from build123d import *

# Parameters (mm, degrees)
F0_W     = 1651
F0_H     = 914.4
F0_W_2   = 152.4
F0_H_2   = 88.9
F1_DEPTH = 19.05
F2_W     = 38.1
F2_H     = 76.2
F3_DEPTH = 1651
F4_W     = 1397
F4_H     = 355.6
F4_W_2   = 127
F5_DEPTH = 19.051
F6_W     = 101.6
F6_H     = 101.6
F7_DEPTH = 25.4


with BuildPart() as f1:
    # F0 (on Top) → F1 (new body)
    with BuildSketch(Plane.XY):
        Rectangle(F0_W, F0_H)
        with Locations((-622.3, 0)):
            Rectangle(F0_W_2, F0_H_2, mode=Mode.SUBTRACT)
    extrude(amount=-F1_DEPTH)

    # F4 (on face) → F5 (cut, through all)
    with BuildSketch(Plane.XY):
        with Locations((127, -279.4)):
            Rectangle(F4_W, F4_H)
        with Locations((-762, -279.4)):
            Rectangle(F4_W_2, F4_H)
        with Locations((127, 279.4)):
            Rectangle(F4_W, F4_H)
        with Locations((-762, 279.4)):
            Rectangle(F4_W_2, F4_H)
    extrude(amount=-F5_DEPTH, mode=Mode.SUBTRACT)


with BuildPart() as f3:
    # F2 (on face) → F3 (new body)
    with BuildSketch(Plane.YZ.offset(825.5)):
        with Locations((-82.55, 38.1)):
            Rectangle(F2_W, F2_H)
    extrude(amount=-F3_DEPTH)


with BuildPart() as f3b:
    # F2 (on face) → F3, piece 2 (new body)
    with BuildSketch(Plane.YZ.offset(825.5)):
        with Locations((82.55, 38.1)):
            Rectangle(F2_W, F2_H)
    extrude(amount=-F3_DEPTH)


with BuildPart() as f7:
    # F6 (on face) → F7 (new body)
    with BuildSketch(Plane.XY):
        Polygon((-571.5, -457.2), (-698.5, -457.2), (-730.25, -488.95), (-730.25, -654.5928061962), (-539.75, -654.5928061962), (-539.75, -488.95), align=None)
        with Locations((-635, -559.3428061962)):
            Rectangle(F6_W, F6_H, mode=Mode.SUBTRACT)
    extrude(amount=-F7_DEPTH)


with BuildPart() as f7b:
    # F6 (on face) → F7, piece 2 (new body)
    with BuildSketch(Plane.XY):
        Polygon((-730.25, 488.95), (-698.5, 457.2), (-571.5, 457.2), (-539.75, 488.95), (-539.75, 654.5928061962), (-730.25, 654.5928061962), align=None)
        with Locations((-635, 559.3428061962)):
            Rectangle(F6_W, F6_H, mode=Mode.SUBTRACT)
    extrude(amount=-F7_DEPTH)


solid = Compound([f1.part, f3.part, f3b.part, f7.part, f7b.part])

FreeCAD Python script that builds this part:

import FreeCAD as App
import Part
import Sketcher
Q = App.Units.Quantity

doc = App.newDocument("Part")
body = doc.addObject("PartDesign::Body", "Body")

# Sketch on XY plane
sketch1 = body.newObject("Sketcher::SketchObject", "Sketch")
sketch1.AttachmentSupport = (doc.getObject("XY_Plane"), [""])
sketch1.MapMode = "FlatFace"
sketch1.addGeometry(Part.LineSegment(App.Vector(-826, 457, 0), App.Vector(-826, -457, 0)), False)
sketch1.addGeometry(Part.LineSegment(App.Vector(-826, -457, 0), App.Vector(826, -457, 0)), False)
sketch1.addGeometry(Part.LineSegment(App.Vector(826, -457, 0), App.Vector(826, 457, 0)), False)
sketch1.addGeometry(Part.LineSegment(App.Vector(826, 457, 0), App.Vector(-826, 457, 0)), False)
sketch1.addGeometry(Part.LineSegment(App.Vector(-546, -44, 0), App.Vector(-698, -44, 0)), False)
sketch1.addGeometry(Part.LineSegment(App.Vector(-698, -44, 0), App.Vector(-698, 44, 0)), False)
sketch1.addGeometry(Part.LineSegment(App.Vector(-698, 44, 0), App.Vector(-546, 44, 0)), False)
sketch1.addGeometry(Part.LineSegment(App.Vector(-546, 44, 0), App.Vector(-546, -44, 0)), False)
sketch1.addConstraint(Sketcher.Constraint("Coincident", 0, 2, 1, 1))
sketch1.addConstraint(Sketcher.Constraint("Coincident", 1, 2, 2, 1))
sketch1.addConstraint(Sketcher.Constraint("Coincident", 2, 2, 3, 1))
sketch1.addConstraint(Sketcher.Constraint("Coincident", 3, 2, 0, 1))
sketch1.addConstraint(Sketcher.Constraint("Coincident", 4, 2, 5, 1))
sketch1.addConstraint(Sketcher.Constraint("Coincident", 5, 2, 6, 1))
sketch1.addConstraint(Sketcher.Constraint("Coincident", 6, 2, 7, 1))
sketch1.addConstraint(Sketcher.Constraint("Coincident", 7, 2, 4, 1))
sketch1.addConstraint(Sketcher.Constraint("Vertical", 0))
sketch1.addConstraint(Sketcher.Constraint("Horizontal", 1))
sketch1.addConstraint(Sketcher.Constraint("Vertical", 2))
sketch1.addConstraint(Sketcher.Constraint("Horizontal", 3))
sketch1.addConstraint(Sketcher.Constraint("Horizontal", 4))
sketch1.addConstraint(Sketcher.Constraint("Vertical", 5))
sketch1.addConstraint(Sketcher.Constraint("Horizontal", 6))
sketch1.addConstraint(Sketcher.Constraint("Vertical", 7))
sketch1.addConstraint(Sketcher.Constraint("Symmetric", 0, 2, 2, 2, -1, 1))
sketch1.addConstraint(Sketcher.Constraint("DistanceX", 1, 1, 1, 2, Q("65 in")))
sketch1.addConstraint(Sketcher.Constraint("DistanceX", 4, 2, 4, 1, Q("6 in")))
sketch1.addConstraint(Sketcher.Constraint("DistanceY", 0, 2, 0, 1, Q("36 in")))
sketch1.addConstraint(Sketcher.Constraint("DistanceY", 5, 1, 5, 2, Q("3.5 in")))
sketch1.addConstraint(Sketcher.Constraint("DistanceX", 0, 2, 4, 2, Q("5 in")))
sketch1.addConstraint(Sketcher.Constraint("DistanceY", 4, 2, -1, 1, Q("1.75 in")))
pad1 = body.newObject("PartDesign::Pad", "Pad")
pad1.Profile = sketch1
pad1.Length = Q("0.75 in")
pad1.Reversed = True

# Sketch on XY plane
sketch2 = body.newObject("Sketcher::SketchObject", "Sketch001")
sketch2.AttachmentSupport = (doc.getObject("XY_Plane"), [""])
sketch2.MapMode = "FlatFace"
sketch2.addGeometry(Part.LineSegment(App.Vector(-572, -102, 0), App.Vector(-572, -457, 0)), False)
sketch2.addGeometry(Part.LineSegment(App.Vector(-572, -457, 0), App.Vector(826, -457, 0)), False)
sketch2.addGeometry(Part.LineSegment(App.Vector(826, -457, 0), App.Vector(826, -102, 0)), False)
sketch2.addGeometry(Part.LineSegment(App.Vector(826, -102, 0), App.Vector(-572, -102, 0)), False)
sketch2.addGeometry(Part.LineSegment(App.Vector(-826, -102, 0), App.Vector(-826, -457, 0)), False)
sketch2.addGeometry(Part.LineSegment(App.Vector(-826, -457, 0), App.Vector(-698, -457, 0)), False)
sketch2.addGeometry(Part.LineSegment(App.Vector(-698, -457, 0), App.Vector(-698, -102, 0)), False)
sketch2.addGeometry(Part.LineSegment(App.Vector(-698, -102, 0), App.Vector(-826, -102, 0)), False)
sketch2.addGeometry(Part.LineSegment(App.Vector(-572, 457, 0), App.Vector(-572, 102, 0)), False)
sketch2.addGeometry(Part.LineSegment(App.Vector(-572, 102, 0), App.Vector(826, 102, 0)), False)
sketch2.addGeometry(Part.LineSegment(App.Vector(826, 102, 0), App.Vector(826, 457, 0)), False)
sketch2.addGeometry(Part.LineSegment(App.Vector(826, 457, 0), App.Vector(-572, 457, 0)), False)
sketch2.addGeometry(Part.LineSegment(App.Vector(-826, 457, 0), App.Vector(-826, 102, 0)), False)
sketch2.addGeometry(Part.LineSegment(App.Vector(-826, 102, 0), App.Vector(-698, 102, 0)), False)
sketch2.addGeometry(Part.LineSegment(App.Vector(-698, 102, 0), App.Vector(-698, 457, 0)), False)
sketch2.addGeometry(Part.LineSegment(App.Vector(-698, 457, 0), App.Vector(-826, 457, 0)), False)
sketch2.addConstraint(Sketcher.Constraint("Coincident", 0, 2, 1, 1))
sketch2.addConstraint(Sketcher.Constraint("Coincident", 1, 2, 2, 1))
sketch2.addConstraint(Sketcher.Constraint("Coincident", 2, 2, 3, 1))
sketch2.addConstraint(Sketcher.Constraint("Coincident", 3, 2, 0, 1))
sketch2.addConstraint(Sketcher.Constraint("Coincident", 4, 2, 5, 1))
sketch2.addConstraint(Sketcher.Constraint("Coincident", 5, 2, 6, 1))
sketch2.addConstraint(Sketcher.Constraint("Coincident", 6, 2, 7, 1))
sketch2.addConstraint(Sketcher.Constraint("Coincident", 7, 2, 4, 1))
sketch2.addConstraint(Sketcher.Constraint("Coincident", 8, 2, 9, 1))
sketch2.addConstraint(Sketcher.Constraint("Coincident", 9, 2, 10, 1))
sketch2.addConstraint(Sketcher.Constraint("Coincident", 10, 2, 11, 1))
sketch2.addConstraint(Sketcher.Constraint("Coincident", 11, 2, 8, 1))
sketch2.addConstraint(Sketcher.Constraint("Coincident", 12, 2, 13, 1))
sketch2.addConstraint(Sketcher.Constraint("Coincident", 13, 2, 14, 1))
sketch2.addConstraint(Sketcher.Constraint("Coincident", 14, 2, 15, 1))
sketch2.addConstraint(Sketcher.Constraint("Coincident", 15, 2, 12, 1))
sketch2.addConstraint(Sketcher.Constraint("Vertical", 0))
sketch2.addConstraint(Sketcher.Constraint("Horizontal", 1))
sketch2.addConstraint(Sketcher.Constraint("Vertical", 2))
sketch2.addConstraint(Sketcher.Constraint("Horizontal", 3))
sketch2.addConstraint(Sketcher.Constraint("Vertical", 4))
sketch2.addConstraint(Sketcher.Constraint("Horizontal", 5))
sketch2.addConstraint(Sketcher.Constraint("Vertical", 6))
sketch2.addConstraint(Sketcher.Constraint("Horizontal", 7))
sketch2.addConstraint(Sketcher.Constraint("Vertical", 8))
sketch2.addConstraint(Sketcher.Constraint("Horizontal", 9))
sketch2.addConstraint(Sketcher.Constraint("Vertical", 10))
sketch2.addConstraint(Sketcher.Constraint("Horizontal", 11))
sketch2.addConstraint(Sketcher.Constraint("Vertical", 12))
sketch2.addConstraint(Sketcher.Constraint("Horizontal", 13))
sketch2.addConstraint(Sketcher.Constraint("Vertical", 14))
sketch2.addConstraint(Sketcher.Constraint("Horizontal", 15))
sketch2.addConstraint(Sketcher.Constraint("Symmetric", 7, 2, 9, 2, -1, 1))
sketch2.addConstraint(Sketcher.Constraint("Symmetric", 2, 2, 12, 2, -1, 1))
sketch2.addConstraint(Sketcher.Constraint("Symmetric", 1, 2, 4, 2, -2))
sketch2.addConstraint(Sketcher.Constraint("Symmetric", 3, 2, 8, 2, -1))
sketch2.addConstraint(Sketcher.Constraint("Symmetric", 5, 2, 14, 2, -1))
sketch2.addConstraint(Sketcher.Constraint("Horizontal", 11, 2, 14, 2))
sketch2.addConstraint(Sketcher.Constraint("DistanceX", 1, 1, 1, 2, Q("55 in")))
sketch2.addConstraint(Sketcher.Constraint("DistanceX", 5, 1, 5, 2, Q("5 in")))
sketch2.addConstraint(Sketcher.Constraint("DistanceY", 0, 2, 0, 1, Q("14 in")))
sketch2.addConstraint(Sketcher.Constraint("DistanceY", 0, 2, -1, 1, Q("18 in")))
sketch2.addConstraint(Sketcher.Constraint("DistanceX", 4, 2, 0, 2, Q("10 in")))
pocket1 = body.newObject("PartDesign::Pocket", "Pocket")
pocket1.Profile = sketch2
pocket1.Type = "ThroughAll"
body2 = doc.addObject("PartDesign::Body", "Body001")

# Sketch on YZ plane
sketch3 = body2.newObject("Sketcher::SketchObject", "Sketch002")
sketch3.AttachmentSupport = (doc.getObject("YZ_Plane001"), [""])
sketch3.MapMode = "FlatFace"
sketch3.AttachmentOffset = App.Placement(App.Vector(0, 0, 32.5 * 25.4), App.Rotation())
sketch3.addGeometry(Part.LineSegment(App.Vector(-102, 76, 0), App.Vector(-102, 0, 0)), False)
sketch3.addGeometry(Part.LineSegment(App.Vector(-102, 0, 0), App.Vector(-64, 0, 0)), False)
sketch3.addGeometry(Part.LineSegment(App.Vector(-64, 0, 0), App.Vector(-64, 76, 0)), False)
sketch3.addGeometry(Part.LineSegment(App.Vector(-64, 76, 0), App.Vector(-102, 76, 0)), False)
sketch3.addConstraint(Sketcher.Constraint("Coincident", 0, 2, 1, 1))
sketch3.addConstraint(Sketcher.Constraint("Coincident", 1, 2, 2, 1))
sketch3.addConstraint(Sketcher.Constraint("Coincident", 2, 2, 3, 1))
sketch3.addConstraint(Sketcher.Constraint("Coincident", 3, 2, 0, 1))
sketch3.addConstraint(Sketcher.Constraint("Vertical", 0))
sketch3.addConstraint(Sketcher.Constraint("Horizontal", 1))
sketch3.addConstraint(Sketcher.Constraint("Vertical", 2))
sketch3.addConstraint(Sketcher.Constraint("Horizontal", 3))
sketch3.addConstraint(Sketcher.Constraint("PointOnObject", 0, 2, -1))
sketch3.addConstraint(Sketcher.Constraint("DistanceY", 0, 2, 0, 1, Q("3 in")))
sketch3.addConstraint(Sketcher.Constraint("DistanceX", 1, 1, 1, 2, Q("1.5 in")))
sketch3.addConstraint(Sketcher.Constraint("DistanceX", 0, 2, -1, 1, Q("4 in")))
pad2 = body2.newObject("PartDesign::Pad", "Pad001")
pad2.Profile = sketch3
pad2.Length = Q("65 in")
pad2.Reversed = True
body3 = doc.addObject("PartDesign::Body", "Body002")

# Sketch on YZ plane
sketch4 = body3.newObject("Sketcher::SketchObject", "Sketch003")
sketch4.AttachmentSupport = (doc.getObject("YZ_Plane002"), [""])
sketch4.MapMode = "FlatFace"
sketch4.AttachmentOffset = App.Placement(App.Vector(0, 0, 32.5 * 25.4), App.Rotation())
sketch4.addGeometry(Part.LineSegment(App.Vector(64, 76, 0), App.Vector(64, 0, 0)), False)
sketch4.addGeometry(Part.LineSegment(App.Vector(64, 0, 0), App.Vector(102, 0, 0)), False)
sketch4.addGeometry(Part.LineSegment(App.Vector(102, 0, 0), App.Vector(102, 76, 0)), False)
sketch4.addGeometry(Part.LineSegment(App.Vector(102, 76, 0), App.Vector(64, 76, 0)), False)
sketch4.addConstraint(Sketcher.Constraint("Coincident", 0, 2, 1, 1))
sketch4.addConstraint(Sketcher.Constraint("Coincident", 1, 2, 2, 1))
sketch4.addConstraint(Sketcher.Constraint("Coincident", 2, 2, 3, 1))
sketch4.addConstraint(Sketcher.Constraint("Coincident", 3, 2, 0, 1))
sketch4.addConstraint(Sketcher.Constraint("Vertical", 0))
sketch4.addConstraint(Sketcher.Constraint("Horizontal", 1))
sketch4.addConstraint(Sketcher.Constraint("Vertical", 2))
sketch4.addConstraint(Sketcher.Constraint("Horizontal", 3))
sketch4.addConstraint(Sketcher.Constraint("PointOnObject", 0, 2, -1))
sketch4.addConstraint(Sketcher.Constraint("DistanceY", 0, 2, 0, 1, Q("3 in")))
sketch4.addConstraint(Sketcher.Constraint("DistanceX", 1, 1, 1, 2, Q("1.5 in")))
sketch4.addConstraint(Sketcher.Constraint("DistanceX", -1, 1, 1, 2, Q("4 in")))
pad3 = body3.newObject("PartDesign::Pad", "Pad002")
pad3.Profile = sketch4
pad3.Length = Q("65 in")
pad3.Reversed = True
body4 = doc.addObject("PartDesign::Body", "Body003")

# Sketch on XY plane
sketch5 = body4.newObject("Sketcher::SketchObject", "Sketch004")
sketch5.AttachmentSupport = (doc.getObject("XY_Plane003"), [""])
sketch5.MapMode = "FlatFace"
sketch5.addGeometry(Part.LineSegment(App.Vector(-572, -457, 0), App.Vector(-698, -457, 0)), False)
sketch5.addGeometry(Part.LineSegment(App.Vector(-698, -457, 0), App.Vector(-730, -489, 0)), False)
sketch5.addGeometry(Part.LineSegment(App.Vector(-730, -489, 0), App.Vector(-730, -655, 0)), False)
sketch5.addGeometry(Part.LineSegment(App.Vector(-730, -655, 0), App.Vector(-540, -655, 0)), False)
sketch5.addGeometry(Part.LineSegment(App.Vector(-540, -655, 0), App.Vector(-540, -489, 0)), False)
sketch5.addGeometry(Part.LineSegment(App.Vector(-540, -489, 0), App.Vector(-572, -457, 0)), False)
sketch5.addGeometry(Part.LineSegment(App.Vector(-584, -610, 0), App.Vector(-686, -610, 0)), False)
sketch5.addGeometry(Part.LineSegment(App.Vector(-686, -610, 0), App.Vector(-686, -509, 0)), False)
sketch5.addGeometry(Part.LineSegment(App.Vector(-686, -509, 0), App.Vector(-584, -509, 0)), False)
sketch5.addGeometry(Part.LineSegment(App.Vector(-584, -509, 0), App.Vector(-584, -610, 0)), False)
sketch5.addConstraint(Sketcher.Constraint("Coincident", 0, 2, 1, 1))
sketch5.addConstraint(Sketcher.Constraint("Coincident", 1, 2, 2, 1))
sketch5.addConstraint(Sketcher.Constraint("Coincident", 2, 2, 3, 1))
sketch5.addConstraint(Sketcher.Constraint("Coincident", 3, 2, 4, 1))
sketch5.addConstraint(Sketcher.Constraint("Coincident", 4, 2, 5, 1))
sketch5.addConstraint(Sketcher.Constraint("Coincident", 5, 2, 0, 1))
sketch5.addConstraint(Sketcher.Constraint("Coincident", 6, 2, 7, 1))
sketch5.addConstraint(Sketcher.Constraint("Coincident", 7, 2, 8, 1))
sketch5.addConstraint(Sketcher.Constraint("Coincident", 8, 2, 9, 1))
sketch5.addConstraint(Sketcher.Constraint("Coincident", 9, 2, 6, 1))
sketch5.addConstraint(Sketcher.Constraint("Horizontal", 0))
sketch5.addConstraint(Sketcher.Constraint("Vertical", 2))
sketch5.addConstraint(Sketcher.Constraint("Horizontal", 3))
sketch5.addConstraint(Sketcher.Constraint("Vertical", 4))
sketch5.addConstraint(Sketcher.Constraint("Horizontal", 6))
sketch5.addConstraint(Sketcher.Constraint("Vertical", 7))
sketch5.addConstraint(Sketcher.Constraint("Horizontal", 8))
sketch5.addConstraint(Sketcher.Constraint("Vertical", 9))
sketch5.addConstraint(Sketcher.Constraint("Perpendicular", 1, 5))
sketch5.addConstraint(Sketcher.Constraint("Horizontal", 1, 2, 4, 2))
sketch5.addConstraint(Sketcher.Constraint("Equal", 8, 7))
sketch5.addConstraint(Sketcher.Constraint("Equal", 1, 5))
sketch5.addConstraint(Sketcher.Constraint("DistanceX", 0, 2, 0, 1, Q("5 in")))
sketch5.addConstraint(Sketcher.Constraint("DistanceX", 6, 2, 6, 1, Q("4 in")))
sketch5.addConstraint(Sketcher.Constraint("DistanceX", 3, 1, 3, 2, Q("7.5 in")))
sketch5.addConstraint(Sketcher.Constraint("DistanceY", 0, 2, -1, 1, Q("18 in")))
sketch5.addConstraint(Sketcher.Constraint("DistanceX", 6, 2, -1, 1, Q("27 in")))
sketch5.addConstraint(Sketcher.Constraint("DistanceX", 0, 2, -1, 1, Q("27.5 in")))
sketch5.addConstraint(Sketcher.Constraint("DistanceY", 2, 2, 6, 2, Q("1.75 in")))
sketch5.addConstraint(Sketcher.Constraint("DistanceY", 2, 2, 2, 1, 165.642806))
pad4 = body4.newObject("PartDesign::Pad", "Pad003")
pad4.Profile = sketch5
pad4.Length = Q("1 in")
pad4.Reversed = True
body5 = doc.addObject("PartDesign::Body", "Body004")

# Sketch on XY plane
sketch6 = body5.newObject("Sketcher::SketchObject", "Sketch005")
sketch6.AttachmentSupport = (doc.getObject("XY_Plane004"), [""])
sketch6.MapMode = "FlatFace"
sketch6.addGeometry(Part.LineSegment(App.Vector(-730, 489, 0), App.Vector(-698, 457, 0)), False)
sketch6.addGeometry(Part.LineSegment(App.Vector(-698, 457, 0), App.Vector(-572, 457, 0)), False)
sketch6.addGeometry(Part.LineSegment(App.Vector(-572, 457, 0), App.Vector(-540, 489, 0)), False)
sketch6.addGeometry(Part.LineSegment(App.Vector(-540, 489, 0), App.Vector(-540, 655, 0)), False)
sketch6.addGeometry(Part.LineSegment(App.Vector(-540, 655, 0), App.Vector(-730, 655, 0)), False)
sketch6.addGeometry(Part.LineSegment(App.Vector(-730, 655, 0), App.Vector(-730, 489, 0)), False)
sketch6.addGeometry(Part.LineSegment(App.Vector(-584, 509, 0), App.Vector(-686, 509, 0)), False)
sketch6.addGeometry(Part.LineSegment(App.Vector(-686, 509, 0), App.Vector(-686, 610, 0)), False)
sketch6.addGeometry(Part.LineSegment(App.Vector(-686, 610, 0), App.Vector(-584, 610, 0)), False)
sketch6.addGeometry(Part.LineSegment(App.Vector(-584, 610, 0), App.Vector(-584, 509, 0)), False)
sketch6.addConstraint(Sketcher.Constraint("Coincident", 0, 2, 1, 1))
sketch6.addConstraint(Sketcher.Constraint("Coincident", 1, 2, 2, 1))
sketch6.addConstraint(Sketcher.Constraint("Coincident", 2, 2, 3, 1))
sketch6.addConstraint(Sketcher.Constraint("Coincident", 3, 2, 4, 1))
sketch6.addConstraint(Sketcher.Constraint("Coincident", 4, 2, 5, 1))
sketch6.addConstraint(Sketcher.Constraint("Coincident", 5, 2, 0, 1))
sketch6.addConstraint(Sketcher.Constraint("Coincident", 6, 2, 7, 1))
sketch6.addConstraint(Sketcher.Constraint("Coincident", 7, 2, 8, 1))
sketch6.addConstraint(Sketcher.Constraint("Coincident", 8, 2, 9, 1))
sketch6.addConstraint(Sketcher.Constraint("Coincident", 9, 2, 6, 1))
sketch6.addConstraint(Sketcher.Constraint("Horizontal", 1))
sketch6.addConstraint(Sketcher.Constraint("Vertical", 3))
sketch6.addConstraint(Sketcher.Constraint("Horizontal", 4))
sketch6.addConstraint(Sketcher.Constraint("Vertical", 5))
sketch6.addConstraint(Sketcher.Constraint("Horizontal", 6))
sketch6.addConstraint(Sketcher.Constraint("Vertical", 7))
sketch6.addConstraint(Sketcher.Constraint("Horizontal", 8))
sketch6.addConstraint(Sketcher.Constraint("Vertical", 9))
sketch6.addConstraint(Sketcher.Constraint("Perpendicular", 0, 2))
sketch6.addConstraint(Sketcher.Constraint("Horizontal", 2, 2, 5, 2))
sketch6.addConstraint(Sketcher.Constraint("Equal", 8, 7))
sketch6.addConstraint(Sketcher.Constraint("Equal", 0, 2))
sketch6.addConstraint(Sketcher.Constraint("DistanceX", 1, 1, 1, 2, Q("5 in")))
sketch6.addConstraint(Sketcher.Constraint("DistanceX", 6, 2, 6, 1, Q("4 in")))
sketch6.addConstraint(Sketcher.Constraint("DistanceX", 4, 2, 4, 1, Q("7.5 in")))
sketch6.addConstraint(Sketcher.Constraint("DistanceY", -1, 1, 0, 2, Q("18 in")))
sketch6.addConstraint(Sketcher.Constraint("DistanceX", 6, 2, -1, 1, Q("27 in")))
sketch6.addConstraint(Sketcher.Constraint("DistanceX", 0, 2, -1, 1, Q("27.5 in")))
sketch6.addConstraint(Sketcher.Constraint("DistanceY", 6, 2, 4, 2, Q("5.75 in")))
sketch6.addConstraint(Sketcher.Constraint("DistanceY", 3, 1, 3, 2, 165.642806))
pad5 = body5.newObject("PartDesign::Pad", "Pad004")
pad5.Profile = sketch6
pad5.Length = Q("1 in")
pad5.Reversed = True

doc.recompute()
